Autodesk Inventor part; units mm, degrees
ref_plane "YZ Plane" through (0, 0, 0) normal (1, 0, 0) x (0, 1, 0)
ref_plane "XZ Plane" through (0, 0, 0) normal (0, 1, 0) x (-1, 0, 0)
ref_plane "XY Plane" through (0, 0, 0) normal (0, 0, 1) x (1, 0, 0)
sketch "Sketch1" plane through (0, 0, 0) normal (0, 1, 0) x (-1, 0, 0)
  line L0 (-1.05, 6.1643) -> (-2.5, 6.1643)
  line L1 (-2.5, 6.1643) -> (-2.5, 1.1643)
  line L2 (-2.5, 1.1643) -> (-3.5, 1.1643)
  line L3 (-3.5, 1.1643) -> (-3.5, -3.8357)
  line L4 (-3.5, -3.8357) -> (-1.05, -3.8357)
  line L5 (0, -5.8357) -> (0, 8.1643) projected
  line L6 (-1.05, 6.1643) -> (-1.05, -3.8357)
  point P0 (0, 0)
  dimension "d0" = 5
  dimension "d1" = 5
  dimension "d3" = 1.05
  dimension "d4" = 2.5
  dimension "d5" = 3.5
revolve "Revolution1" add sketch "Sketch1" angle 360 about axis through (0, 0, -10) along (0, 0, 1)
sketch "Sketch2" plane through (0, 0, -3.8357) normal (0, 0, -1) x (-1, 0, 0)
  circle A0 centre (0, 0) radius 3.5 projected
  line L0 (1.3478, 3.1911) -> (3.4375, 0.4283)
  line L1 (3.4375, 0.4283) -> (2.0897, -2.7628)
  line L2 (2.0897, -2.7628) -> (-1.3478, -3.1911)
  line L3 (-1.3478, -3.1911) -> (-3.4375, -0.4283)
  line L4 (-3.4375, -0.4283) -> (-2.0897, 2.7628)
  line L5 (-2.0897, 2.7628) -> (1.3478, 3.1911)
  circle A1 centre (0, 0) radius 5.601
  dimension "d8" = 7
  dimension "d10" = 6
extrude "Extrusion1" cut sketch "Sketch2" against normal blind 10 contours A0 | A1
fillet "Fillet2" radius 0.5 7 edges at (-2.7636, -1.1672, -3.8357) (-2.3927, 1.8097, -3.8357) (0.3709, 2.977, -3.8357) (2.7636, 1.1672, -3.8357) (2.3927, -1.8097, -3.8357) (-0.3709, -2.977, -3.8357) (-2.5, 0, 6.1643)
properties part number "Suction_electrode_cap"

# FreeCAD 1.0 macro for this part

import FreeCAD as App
import Part
import Sketcher

V = App.Vector


def edges_at(feature, points):
    """Names of the edges that pass closest to the given points."""
    edges = feature.Shape.Edges
    near = lambda p: min(range(len(edges)), key=lambda i: edges[i].distToShape(Part.Vertex(*p))[0])
    return sorted({f"Edge{near(p) + 1}" for p in points})

doc = App.newDocument("Part")
body = doc.addObject("PartDesign::Body", "Body")

# Sketch on XZ plane
sketch1 = doc.addObject("Sketcher::SketchObject", "Sketch")
body.addObject(sketch1)
sketch1.AttachmentSupport = (doc.XZ_Plane, [""])
sketch1.MapMode = "FlatFace"
sketch1.addGeometry(Part.LineSegment(V(1.1, -3.8, 0), V(1.1, 6.2, 0)), False)
sketch1.addGeometry(Part.LineSegment(V(1.1, 6.2, 0), V(2.5, 6.2, 0)), False)
sketch1.addGeometry(Part.LineSegment(V(2.5, 6.2, 0), V(2.5, 1.2, 0)), False)
sketch1.addGeometry(Part.LineSegment(V(2.5, 1.2, 0), V(3.5, 1.2, 0)), False)
sketch1.addGeometry(Part.LineSegment(V(3.5, 1.2, 0), V(3.5, -3.8, 0)), False)
sketch1.addGeometry(Part.LineSegment(V(3.5, -3.8, 0), V(1.1, -3.8, 0)), False)
sketch1.addConstraint(Sketcher.Constraint("Coincident", 0, 2, 1, 1))
sketch1.addConstraint(Sketcher.Constraint("Coincident", 1, 2, 2, 1))
sketch1.addConstraint(Sketcher.Constraint("Coincident", 2, 2, 3, 1))
sketch1.addConstraint(Sketcher.Constraint("Coincident", 3, 2, 4, 1))
sketch1.addConstraint(Sketcher.Constraint("Coincident", 4, 2, 5, 1))
sketch1.addConstraint(Sketcher.Constraint("Coincident", 5, 2, 0, 1))
sketch1.addConstraint(Sketcher.Constraint("Vertical", 0))
sketch1.addConstraint(Sketcher.Constraint("Horizontal", 1))
sketch1.addConstraint(Sketcher.Constraint("Vertical", 2))
sketch1.addConstraint(Sketcher.Constraint("Horizontal", 3))
sketch1.addConstraint(Sketcher.Constraint("Vertical", 4))
sketch1.addConstraint(Sketcher.Constraint("Horizontal", 5))
sketch1.addConstraint(Sketcher.Constraint("Equal", 2, 4))
sketch1.addConstraint(Sketcher.Constraint("DistanceY", 2, 2, 2, 1, 5.0))
sketch1.addConstraint(Sketcher.Constraint("DistanceX", -1, 1, 1, 2, 2.5))
sketch1.addConstraint(Sketcher.Constraint("DistanceX", -1, 1, 3, 2, 3.5))
sketch1.addConstraint(Sketcher.Constraint("DistanceX", -1, 1, 0, 2, 1.05))
sketch1.addConstraint(Sketcher.Constraint("DistanceY", -1, 1, 0, 2, 6.1643))
revolution = doc.addObject("PartDesign::Revolution", "Revolution")
body.addObject(revolution)
revolution.Profile = sketch1
revolution.ReferenceAxis = (sketch1, ["V_Axis"])
revolution.Angle = 360

# Sketch on XY plane
sketch2 = doc.addObject("Sketcher::SketchObject", "Sketch001")
body.addObject(sketch2)
sketch2.AttachmentSupport = (doc.XY_Plane, [""])
sketch2.MapMode = "FlatFace"
sketch2.AttachmentOffset = App.Placement(V(0, 0, -3.8357), App.Rotation())
sketch2.addGeometry(Part.Circle(V(0, 0, 0), V(0, 0, 1), 5.6), False)
sketch2.addGeometry(Part.LineSegment(V(2.1, 2.8, 0), V(-1.3, 3.2, 0)), False)
sketch2.addGeometry(Part.LineSegment(V(-1.3, 3.2, 0), V(-3.4, 0.4, 0)), False)
sketch2.addGeometry(Part.LineSegment(V(-3.4, 0.4, 0), V(-2.1, -2.8, 0)), False)
sketch2.addGeometry(Part.LineSegment(V(-2.1, -2.8, 0), V(1.3, -3.2, 0)), False)
sketch2.addGeometry(Part.LineSegment(V(1.3, -3.2, 0), V(3.4, -0.4, 0)), False)
sketch2.addGeometry(Part.LineSegment(V(3.4, -0.4, 0), V(2.1, 2.8, 0)), False)
sketch2.addConstraint(Sketcher.Constraint("Coincident", 1, 2, 2, 1))
sketch2.addConstraint(Sketcher.Constraint("Coincident", 2, 2, 3, 1))
sketch2.addConstraint(Sketcher.Constraint("Coincident", 3, 2, 4, 1))
sketch2.addConstraint(Sketcher.Constraint("Coincident", 4, 2, 5, 1))
sketch2.addConstraint(Sketcher.Constraint("Coincident", 5, 2, 6, 1))
sketch2.addConstraint(Sketcher.Constraint("Coincident", 6, 2, 1, 1))
sketch2.addConstraint(Sketcher.Constraint("Coincident", 0, 3, -1, 1))
sketch2.addConstraint(Sketcher.Constraint("Symmetric", 1, 2, 4, 2, -1, 1))
sketch2.addConstraint(Sketcher.Constraint("Symmetric", 2, 2, 5, 2, -1, 1))
sketch2.addConstraint(Sketcher.Constraint("Symmetric", 3, 2, 6, 2, -1, 1))
sketch2.addConstraint(Sketcher.Constraint("Equal", 1, 2))
sketch2.addConstraint(Sketcher.Constraint("Equal", 2, 3))
sketch2.addConstraint(Sketcher.Constraint("Diameter", 0, 11.202))
sketch2.addConstraint(Sketcher.Constraint("Distance", 1, 3.464))
sketch2.addConstraint(Sketcher.Constraint("DistanceY", -1, 1, 1, 2, 3.191))
sketch2.addConstraint(Sketcher.Constraint("DistanceY", 3, 2, 2, 2, 3.191))
sketch2.addConstraint(Sketcher.Constraint("DistanceX", 3, 2, 1, 2, 0.742))
pocket1 = doc.addObject("PartDesign::Pocket", "Pocket")
body.addObject(pocket1)
pocket1.Profile = sketch2
pocket1.Length = 10
pocket1.Reversed = True
doc.recompute()

fillet = doc.addObject("PartDesign::Fillet", "Fillet")
body.addObject(fillet)
fillet.Base = (pocket1, edges_at(pocket1, [
    (-2.764, -1.167, -3.836),
    (-2.393, 1.81, -3.836),
    (0.371, 2.977, -3.836),
    (2.764, 1.167, -3.836),
    (2.393, -1.81, -3.836),
    (-0.371, -2.977, -3.836),
    (-2.5, 0, 6.164),
]))
fillet.Radius = 0.5

doc.recompute()
